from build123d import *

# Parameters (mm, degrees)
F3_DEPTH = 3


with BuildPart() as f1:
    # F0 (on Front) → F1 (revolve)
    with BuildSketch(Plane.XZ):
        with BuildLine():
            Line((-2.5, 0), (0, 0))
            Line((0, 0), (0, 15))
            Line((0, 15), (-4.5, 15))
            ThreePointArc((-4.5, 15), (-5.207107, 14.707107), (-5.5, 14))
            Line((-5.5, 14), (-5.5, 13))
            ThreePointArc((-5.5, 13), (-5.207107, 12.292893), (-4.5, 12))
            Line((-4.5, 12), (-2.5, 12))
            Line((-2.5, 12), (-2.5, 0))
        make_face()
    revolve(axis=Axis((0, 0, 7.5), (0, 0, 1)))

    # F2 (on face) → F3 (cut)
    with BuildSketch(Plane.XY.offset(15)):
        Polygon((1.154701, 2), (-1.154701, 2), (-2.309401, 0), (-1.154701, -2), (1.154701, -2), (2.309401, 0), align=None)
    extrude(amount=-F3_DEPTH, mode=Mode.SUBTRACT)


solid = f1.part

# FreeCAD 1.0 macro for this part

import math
import FreeCAD as App
import Part
import Sketcher
from FreeCAD import Vector
Q = App.Units.Quantity

doc = App.newDocument("Part")
params = doc.addObject("Spreadsheet::Sheet", "Params")
for row, (alias, value) in enumerate([
    ("sketch1_radius", "0.999999 mm"),
    ("sketch1_width", "2 mm"),
    ("sketch1_height", "15 mm"),
    ("sketch1_height2", "1 mm"),
    ("sketch1_width2", "2.5 mm"),
    ("revolution_angle", "360 deg"),
    ("pocket1_length", "3 mm"),
], start=1):
    params.set(f"A{row}", alias)
    params.set(f"B{row}", "=" + value)
    params.setAlias(f"B{row}", alias)

body = doc.addObject("PartDesign::Body", "Body")

sketch1 = body.newObject("Sketcher::SketchObject", "Sketch")
sketch1.AttachmentSupport = (doc.getObject("XZ_Plane"), [""])
sketch1.MapMode = "FlatFace"
sketch1.addGeometry(Part.LineSegment(Vector(-2.5, 0, 0), Vector(0, 0, 0)), False)
sketch1.addGeometry(Part.LineSegment(Vector(0, 0, 0), Vector(0, 15, 0)), False)
sketch1.addGeometry(Part.LineSegment(Vector(0, 15, 0), Vector(-4.5, 15, 0)), False)
sketch1.addGeometry(Part.ArcOfCircle(Part.Circle(Vector(-4.5, 14, 0), Vector(0, 0, 1), 1), math.radians(90), math.radians(180)), False)
sketch1.addGeometry(Part.LineSegment(Vector(-5.5, 14, 0), Vector(-5.5, 13, 0)), False)
sketch1.addGeometry(Part.ArcOfCircle(Part.Circle(Vector(-4.5, 13, 0), Vector(0, 0, 1), 1), math.radians(180), math.radians(270)), False)
sketch1.addGeometry(Part.LineSegment(Vector(-4.5, 12, 0), Vector(-2.5, 12, 0)), False)
sketch1.addGeometry(Part.LineSegment(Vector(-2.5, 12, 0), Vector(-2.5, 0, 0)), False)
sketch1.addConstraint(Sketcher.Constraint("Coincident", 0, 2, 1, 1))
sketch1.addConstraint(Sketcher.Constraint("Coincident", 1, 2, 2, 1))
sketch1.addConstraint(Sketcher.Constraint("Tangent", 2, 2, 3, 1))
sketch1.addConstraint(Sketcher.Constraint("Tangent", 3, 2, 4, 1))
sketch1.addConstraint(Sketcher.Constraint("Tangent", 4, 2, 5, 1))
sketch1.addConstraint(Sketcher.Constraint("Tangent", 5, 2, 6, 1))
sketch1.addConstraint(Sketcher.Constraint("Coincident", 6, 2, 7, 1))
sketch1.addConstraint(Sketcher.Constraint("Coincident", 7, 2, 0, 1))
sketch1.addConstraint(Sketcher.Constraint("Horizontal", 0))
sketch1.addConstraint(Sketcher.Constraint("Vertical", 1))
sketch1.addConstraint(Sketcher.Constraint("Horizontal", 2))
sketch1.addConstraint(Sketcher.Constraint("Vertical", 4))
sketch1.addConstraint(Sketcher.Constraint("Horizontal", 6))
sketch1.addConstraint(Sketcher.Constraint("Vertical", 7))
sketch1.addConstraint(Sketcher.Constraint("Coincident", 0, 2, -1, 1))
sketch1.addConstraint(Sketcher.Constraint("Equal", 3, 5))
sketch1.addConstraint(Sketcher.Constraint("Radius", 3, 0.999999))
sketch1.addConstraint(Sketcher.Constraint("DistanceX", 6, 1, 6, 2, 2.0))
sketch1.addConstraint(Sketcher.Constraint("DistanceY", 1, 1, 1, 2, 15.0))
sketch1.addConstraint(Sketcher.Constraint("DistanceY", 4, 2, 4, 1, 1.0))
sketch1.addConstraint(Sketcher.Constraint("DistanceX", 0, 1, 0, 2, 2.5))
sketch1.setExpression("Constraints[16]", "Params.sketch1_radius")
sketch1.setExpression("Constraints[17]", "Params.sketch1_width")
sketch1.setExpression("Constraints[18]", "Params.sketch1_height")
sketch1.setExpression("Constraints[19]", "Params.sketch1_height2")
sketch1.setExpression("Constraints[20]", "Params.sketch1_width2")
revolution = body.newObject("PartDesign::Revolution", "Revolution")
revolution.Profile = sketch1
revolution.ReferenceAxis = (sketch1, ["V_Axis"])
revolution.setExpression("Angle", "Params.revolution_angle")

sketch2 = body.newObject("Sketcher::SketchObject", "Sketch001")
sketch2.AttachmentSupport = (doc.getObject("XY_Plane"), [""])
sketch2.MapMode = "FlatFace"
sketch2.AttachmentOffset = App.Placement(Vector(0, 0, 15), App.Rotation())
sketch2.addGeometry(Part.LineSegment(Vector(1.2, 2, 0), Vector(-1.2, 2, 0)), False)
sketch2.addGeometry(Part.LineSegment(Vector(-1.2, 2, 0), Vector(-2.3, 0, 0)), False)
sketch2.addGeometry(Part.LineSegment(Vector(-2.3, 0, 0), Vector(-1.2, -2, 0)), False)
sketch2.addGeometry(Part.LineSegment(Vector(-1.2, -2, 0), Vector(1.2, -2, 0)), False)
sketch2.addGeometry(Part.LineSegment(Vector(1.2, -2, 0), Vector(2.3, 0, 0)), False)
sketch2.addGeometry(Part.LineSegment(Vector(2.3, 0, 0), Vector(1.2, 2, 0)), False)
sketch2.addConstraint(Sketcher.Constraint("Coincident", 0, 2, 1, 1))
sketch2.addConstraint(Sketcher.Constraint("Coincident", 1, 2, 2, 1))
sketch2.addConstraint(Sketcher.Constraint("Coincident", 2, 2, 3, 1))
sketch2.addConstraint(Sketcher.Constraint("Coincident", 3, 2, 4, 1))
sketch2.addConstraint(Sketcher.Constraint("Coincident", 4, 2, 5, 1))
sketch2.addConstraint(Sketcher.Constraint("Coincident", 5, 2, 0, 1))
sketch2.addConstraint(Sketcher.Constraint("Horizontal", 0))
sketch2.addConstraint(Sketcher.Constraint("Horizontal", 3))
sketch2.addConstraint(Sketcher.Constraint("Symmetric", 0, 2, 3, 2, -1, 1))
sketch2.addConstraint(Sketcher.Constraint("Symmetric", 1, 2, 4, 2, -1, 1))
sketch2.addConstraint(Sketcher.Constraint("PointOnObject", 1, 2, -1))
sketch2.addConstraint(Sketcher.Constraint("Parallel", 2, 5))
sketch2.addConstraint(Sketcher.Constraint("Vertical", 0, 2, 2, 2))
sketch2.addConstraint(Sketcher.Constraint("Angle", 1, Q("-119.999988 deg")))
sketch2.addConstraint(Sketcher.Constraint("DistanceY", -1, 1, 0, 2, 2.0))
sketch2.addConstraint(Sketcher.Constraint("DistanceX", 0, 2, 0, 1, 2.309402))
pocket1 = body.newObject("PartDesign::Pocket", "Pocket")
pocket1.Profile = sketch2
pocket1.setExpression("Length", "Params.pocket1_length")

doc.recompute()
